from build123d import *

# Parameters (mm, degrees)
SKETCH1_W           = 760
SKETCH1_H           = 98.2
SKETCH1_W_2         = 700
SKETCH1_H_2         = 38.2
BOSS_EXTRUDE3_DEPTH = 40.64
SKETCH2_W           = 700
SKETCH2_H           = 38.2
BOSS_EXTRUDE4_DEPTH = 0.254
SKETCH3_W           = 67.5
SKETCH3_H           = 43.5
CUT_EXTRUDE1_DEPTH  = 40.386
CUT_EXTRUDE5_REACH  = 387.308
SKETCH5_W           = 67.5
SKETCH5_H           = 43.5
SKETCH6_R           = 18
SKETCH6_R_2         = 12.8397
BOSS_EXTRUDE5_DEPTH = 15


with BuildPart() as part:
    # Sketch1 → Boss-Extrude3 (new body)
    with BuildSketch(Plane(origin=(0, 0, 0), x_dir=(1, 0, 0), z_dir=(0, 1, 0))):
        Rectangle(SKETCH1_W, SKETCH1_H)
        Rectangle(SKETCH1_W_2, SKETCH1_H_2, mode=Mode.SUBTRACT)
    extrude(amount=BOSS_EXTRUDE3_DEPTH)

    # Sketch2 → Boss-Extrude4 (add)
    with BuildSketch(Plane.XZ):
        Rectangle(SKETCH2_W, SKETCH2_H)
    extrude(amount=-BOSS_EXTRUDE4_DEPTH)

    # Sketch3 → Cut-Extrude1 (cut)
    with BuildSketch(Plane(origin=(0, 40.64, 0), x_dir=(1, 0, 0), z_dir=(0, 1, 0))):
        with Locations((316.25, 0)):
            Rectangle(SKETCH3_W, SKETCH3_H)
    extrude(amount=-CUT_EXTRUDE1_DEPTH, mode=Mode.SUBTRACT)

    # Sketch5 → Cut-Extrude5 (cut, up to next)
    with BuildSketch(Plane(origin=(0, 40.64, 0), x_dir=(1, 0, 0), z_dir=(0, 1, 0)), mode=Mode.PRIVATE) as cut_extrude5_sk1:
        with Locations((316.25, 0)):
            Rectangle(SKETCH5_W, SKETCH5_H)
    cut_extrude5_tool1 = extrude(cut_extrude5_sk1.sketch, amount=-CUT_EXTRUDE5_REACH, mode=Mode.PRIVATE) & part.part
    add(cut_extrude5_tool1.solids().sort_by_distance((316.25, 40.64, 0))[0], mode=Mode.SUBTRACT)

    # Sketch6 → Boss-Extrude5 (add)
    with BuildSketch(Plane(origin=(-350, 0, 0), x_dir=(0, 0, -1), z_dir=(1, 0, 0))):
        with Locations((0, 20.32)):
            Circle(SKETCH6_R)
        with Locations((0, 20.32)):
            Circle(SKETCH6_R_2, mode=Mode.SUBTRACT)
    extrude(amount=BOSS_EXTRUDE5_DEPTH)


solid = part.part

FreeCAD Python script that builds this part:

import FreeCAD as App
import Part
import Sketcher


def add_polygon(sketch, points):
    """Adds a closed chain of lines whose ends are joined by coincident constraints."""
    first, n = sketch.GeometryCount, len(points)
    for a, b in zip(points, points[1:] + points[:1]):
        sketch.addGeometry(Part.LineSegment(App.Vector(*a, 0), App.Vector(*b, 0)), False)
    for i in range(n):
        sketch.addConstraint(Sketcher.Constraint("Coincident", first + i, 2, first + (i + 1) % n, 1))

doc = App.newDocument("Part")
body = doc.addObject("PartDesign::Body", "Body")

sketch1 = body.newObject("Sketcher::SketchObject", "Sketch")
sketch1.AttachmentSupport = (doc.getObject("XZ_Plane"), [""])
sketch1.MapMode = "FlatFace"
add_polygon(sketch1, [(-380, -49), (-380, 49), (380, 49), (380, -49)])
add_polygon(sketch1, [(350, 19), (-350, 19), (-350, -19), (350, -19)])
sketch1.addConstraint([
    Sketcher.Constraint("Vertical", 0),
    Sketcher.Constraint("Horizontal", 1),
    Sketcher.Constraint("Vertical", 2),
    Sketcher.Constraint("Horizontal", 3),
    Sketcher.Constraint("Horizontal", 4),
    Sketcher.Constraint("Vertical", 5),
    Sketcher.Constraint("Horizontal", 6),
    Sketcher.Constraint("Vertical", 7),
    Sketcher.Constraint("Symmetric", 0, 2, 2, 2, -1, 1),
    Sketcher.Constraint("Symmetric", 4, 2, 6, 2, -1, 1),
    Sketcher.Constraint("DistanceX", 1, 1, 1, 2, 760.0),
    Sketcher.Constraint("DistanceX", 4, 2, 4, 1, 700.0),
    Sketcher.Constraint("DistanceY", 0, 1, 0, 2, 98.2),
    Sketcher.Constraint("DistanceY", 5, 2, 5, 1, 38.2),
])
pad1 = body.newObject("PartDesign::Pad", "Pad")
pad1.Profile = sketch1
pad1.Length = 40.64
pad1.Reversed = True

sketch2 = body.newObject("Sketcher::SketchObject", "Sketch001")
sketch2.AttachmentSupport = (doc.getObject("XZ_Plane"), [""])
sketch2.MapMode = "FlatFace"
add_polygon(sketch2, [(-350, 19), (-350, -19), (350, -19), (350, 19)])
sketch2.addConstraint([
    Sketcher.Constraint("Vertical", 0),
    Sketcher.Constraint("Horizontal", 1),
    Sketcher.Constraint("Vertical", 2),
    Sketcher.Constraint("Horizontal", 3),
    Sketcher.Constraint("Symmetric", 0, 2, 2, 2, -1, 1),
    Sketcher.Constraint("DistanceX", 1, 1, 1, 2, 700.0),
    Sketcher.Constraint("DistanceY", 0, 2, 0, 1, 38.2),
])
pad2 = body.newObject("PartDesign::Pad", "Pad001")
pad2.Profile = sketch2
pad2.Length = 0.254
pad2.Reversed = True

sketch3 = body.newObject("Sketcher::SketchObject", "Sketch002")
sketch3.AttachmentSupport = (doc.getObject("XZ_Plane"), [""])
sketch3.MapMode = "FlatFace"
sketch3.AttachmentOffset = App.Placement(App.Vector(0, 0, -40.64), App.Rotation())
add_polygon(sketch3, [(282, -22), (282, 22), (350, 22), (350, -22)])
sketch3.addConstraint([
    Sketcher.Constraint("Vertical", 0),
    Sketcher.Constraint("Horizontal", 1),
    Sketcher.Constraint("Vertical", 2),
    Sketcher.Constraint("Horizontal", 3),
    Sketcher.Constraint("DistanceX", 1, 1, 1, 2, 67.5),
    Sketcher.Constraint("DistanceY", 0, 1, 0, 2, 43.5),
    Sketcher.Constraint("DistanceX", -1, 1, 1, 2, 350.0),
    Sketcher.Constraint("DistanceY", -1, 1, 0, 2, 21.75),
])
pocket1 = body.newObject("PartDesign::Pocket", "Pocket")
pocket1.Profile = sketch3
pocket1.Length = 40.386
pocket1.Reversed = True

sketch4 = body.newObject("Sketcher::SketchObject", "Sketch003")
sketch4.AttachmentSupport = (doc.getObject("XZ_Plane"), [""])
sketch4.MapMode = "FlatFace"
sketch4.AttachmentOffset = App.Placement(App.Vector(0, 0, -40.64), App.Rotation())
add_polygon(sketch4, [(282, -22), (282, 22), (350, 22), (350, -22)])
sketch4.addConstraint([
    Sketcher.Constraint("Vertical", 0),
    Sketcher.Constraint("Horizontal", 1),
    Sketcher.Constraint("Vertical", 2),
    Sketcher.Constraint("Horizontal", 3),
    Sketcher.Constraint("DistanceX", 1, 1, 1, 2, 67.5),
    Sketcher.Constraint("DistanceY", 0, 1, 0, 2, 43.5),
    Sketcher.Constraint("DistanceX", -1, 1, 1, 2, 350.0),
    Sketcher.Constraint("DistanceY", -1, 1, 0, 2, 21.75),
])
pocket2 = body.newObject("PartDesign::Pocket", "Pocket001")
pocket2.Profile = sketch4
pocket2.Length = 40.64
pocket2.Reversed = True

sketch5 = body.newObject("Sketcher::SketchObject", "Sketch004")
sketch5.AttachmentSupport = (doc.getObject("YZ_Plane"), [""])
sketch5.MapMode = "FlatFace"
sketch5.AttachmentOffset = App.Placement(App.Vector(0, 0, -350), App.Rotation())
sketch5.addGeometry([
    Part.Circle(App.Vector(20, 0, 0), App.Vector(0, 0, 1), 18),
    Part.Circle(App.Vector(20, 0, 0), App.Vector(0, 0, 1), 13),
], False)
sketch5.addConstraint([
    Sketcher.Constraint("Coincident", 1, 3, 0, 3),
    Sketcher.Constraint("PointOnObject", 0, 3, -1),
    Sketcher.Constraint("Diameter", 0, 36.0),
    Sketcher.Constraint("Diameter", 1, 25.6794),
    Sketcher.Constraint("DistanceX", -1, 1, 0, 3, 20.32),
])
pad3 = body.newObject("PartDesign::Pad", "Pad002")
pad3.Profile = sketch5
pad3.Length = 15

doc.recompute()
